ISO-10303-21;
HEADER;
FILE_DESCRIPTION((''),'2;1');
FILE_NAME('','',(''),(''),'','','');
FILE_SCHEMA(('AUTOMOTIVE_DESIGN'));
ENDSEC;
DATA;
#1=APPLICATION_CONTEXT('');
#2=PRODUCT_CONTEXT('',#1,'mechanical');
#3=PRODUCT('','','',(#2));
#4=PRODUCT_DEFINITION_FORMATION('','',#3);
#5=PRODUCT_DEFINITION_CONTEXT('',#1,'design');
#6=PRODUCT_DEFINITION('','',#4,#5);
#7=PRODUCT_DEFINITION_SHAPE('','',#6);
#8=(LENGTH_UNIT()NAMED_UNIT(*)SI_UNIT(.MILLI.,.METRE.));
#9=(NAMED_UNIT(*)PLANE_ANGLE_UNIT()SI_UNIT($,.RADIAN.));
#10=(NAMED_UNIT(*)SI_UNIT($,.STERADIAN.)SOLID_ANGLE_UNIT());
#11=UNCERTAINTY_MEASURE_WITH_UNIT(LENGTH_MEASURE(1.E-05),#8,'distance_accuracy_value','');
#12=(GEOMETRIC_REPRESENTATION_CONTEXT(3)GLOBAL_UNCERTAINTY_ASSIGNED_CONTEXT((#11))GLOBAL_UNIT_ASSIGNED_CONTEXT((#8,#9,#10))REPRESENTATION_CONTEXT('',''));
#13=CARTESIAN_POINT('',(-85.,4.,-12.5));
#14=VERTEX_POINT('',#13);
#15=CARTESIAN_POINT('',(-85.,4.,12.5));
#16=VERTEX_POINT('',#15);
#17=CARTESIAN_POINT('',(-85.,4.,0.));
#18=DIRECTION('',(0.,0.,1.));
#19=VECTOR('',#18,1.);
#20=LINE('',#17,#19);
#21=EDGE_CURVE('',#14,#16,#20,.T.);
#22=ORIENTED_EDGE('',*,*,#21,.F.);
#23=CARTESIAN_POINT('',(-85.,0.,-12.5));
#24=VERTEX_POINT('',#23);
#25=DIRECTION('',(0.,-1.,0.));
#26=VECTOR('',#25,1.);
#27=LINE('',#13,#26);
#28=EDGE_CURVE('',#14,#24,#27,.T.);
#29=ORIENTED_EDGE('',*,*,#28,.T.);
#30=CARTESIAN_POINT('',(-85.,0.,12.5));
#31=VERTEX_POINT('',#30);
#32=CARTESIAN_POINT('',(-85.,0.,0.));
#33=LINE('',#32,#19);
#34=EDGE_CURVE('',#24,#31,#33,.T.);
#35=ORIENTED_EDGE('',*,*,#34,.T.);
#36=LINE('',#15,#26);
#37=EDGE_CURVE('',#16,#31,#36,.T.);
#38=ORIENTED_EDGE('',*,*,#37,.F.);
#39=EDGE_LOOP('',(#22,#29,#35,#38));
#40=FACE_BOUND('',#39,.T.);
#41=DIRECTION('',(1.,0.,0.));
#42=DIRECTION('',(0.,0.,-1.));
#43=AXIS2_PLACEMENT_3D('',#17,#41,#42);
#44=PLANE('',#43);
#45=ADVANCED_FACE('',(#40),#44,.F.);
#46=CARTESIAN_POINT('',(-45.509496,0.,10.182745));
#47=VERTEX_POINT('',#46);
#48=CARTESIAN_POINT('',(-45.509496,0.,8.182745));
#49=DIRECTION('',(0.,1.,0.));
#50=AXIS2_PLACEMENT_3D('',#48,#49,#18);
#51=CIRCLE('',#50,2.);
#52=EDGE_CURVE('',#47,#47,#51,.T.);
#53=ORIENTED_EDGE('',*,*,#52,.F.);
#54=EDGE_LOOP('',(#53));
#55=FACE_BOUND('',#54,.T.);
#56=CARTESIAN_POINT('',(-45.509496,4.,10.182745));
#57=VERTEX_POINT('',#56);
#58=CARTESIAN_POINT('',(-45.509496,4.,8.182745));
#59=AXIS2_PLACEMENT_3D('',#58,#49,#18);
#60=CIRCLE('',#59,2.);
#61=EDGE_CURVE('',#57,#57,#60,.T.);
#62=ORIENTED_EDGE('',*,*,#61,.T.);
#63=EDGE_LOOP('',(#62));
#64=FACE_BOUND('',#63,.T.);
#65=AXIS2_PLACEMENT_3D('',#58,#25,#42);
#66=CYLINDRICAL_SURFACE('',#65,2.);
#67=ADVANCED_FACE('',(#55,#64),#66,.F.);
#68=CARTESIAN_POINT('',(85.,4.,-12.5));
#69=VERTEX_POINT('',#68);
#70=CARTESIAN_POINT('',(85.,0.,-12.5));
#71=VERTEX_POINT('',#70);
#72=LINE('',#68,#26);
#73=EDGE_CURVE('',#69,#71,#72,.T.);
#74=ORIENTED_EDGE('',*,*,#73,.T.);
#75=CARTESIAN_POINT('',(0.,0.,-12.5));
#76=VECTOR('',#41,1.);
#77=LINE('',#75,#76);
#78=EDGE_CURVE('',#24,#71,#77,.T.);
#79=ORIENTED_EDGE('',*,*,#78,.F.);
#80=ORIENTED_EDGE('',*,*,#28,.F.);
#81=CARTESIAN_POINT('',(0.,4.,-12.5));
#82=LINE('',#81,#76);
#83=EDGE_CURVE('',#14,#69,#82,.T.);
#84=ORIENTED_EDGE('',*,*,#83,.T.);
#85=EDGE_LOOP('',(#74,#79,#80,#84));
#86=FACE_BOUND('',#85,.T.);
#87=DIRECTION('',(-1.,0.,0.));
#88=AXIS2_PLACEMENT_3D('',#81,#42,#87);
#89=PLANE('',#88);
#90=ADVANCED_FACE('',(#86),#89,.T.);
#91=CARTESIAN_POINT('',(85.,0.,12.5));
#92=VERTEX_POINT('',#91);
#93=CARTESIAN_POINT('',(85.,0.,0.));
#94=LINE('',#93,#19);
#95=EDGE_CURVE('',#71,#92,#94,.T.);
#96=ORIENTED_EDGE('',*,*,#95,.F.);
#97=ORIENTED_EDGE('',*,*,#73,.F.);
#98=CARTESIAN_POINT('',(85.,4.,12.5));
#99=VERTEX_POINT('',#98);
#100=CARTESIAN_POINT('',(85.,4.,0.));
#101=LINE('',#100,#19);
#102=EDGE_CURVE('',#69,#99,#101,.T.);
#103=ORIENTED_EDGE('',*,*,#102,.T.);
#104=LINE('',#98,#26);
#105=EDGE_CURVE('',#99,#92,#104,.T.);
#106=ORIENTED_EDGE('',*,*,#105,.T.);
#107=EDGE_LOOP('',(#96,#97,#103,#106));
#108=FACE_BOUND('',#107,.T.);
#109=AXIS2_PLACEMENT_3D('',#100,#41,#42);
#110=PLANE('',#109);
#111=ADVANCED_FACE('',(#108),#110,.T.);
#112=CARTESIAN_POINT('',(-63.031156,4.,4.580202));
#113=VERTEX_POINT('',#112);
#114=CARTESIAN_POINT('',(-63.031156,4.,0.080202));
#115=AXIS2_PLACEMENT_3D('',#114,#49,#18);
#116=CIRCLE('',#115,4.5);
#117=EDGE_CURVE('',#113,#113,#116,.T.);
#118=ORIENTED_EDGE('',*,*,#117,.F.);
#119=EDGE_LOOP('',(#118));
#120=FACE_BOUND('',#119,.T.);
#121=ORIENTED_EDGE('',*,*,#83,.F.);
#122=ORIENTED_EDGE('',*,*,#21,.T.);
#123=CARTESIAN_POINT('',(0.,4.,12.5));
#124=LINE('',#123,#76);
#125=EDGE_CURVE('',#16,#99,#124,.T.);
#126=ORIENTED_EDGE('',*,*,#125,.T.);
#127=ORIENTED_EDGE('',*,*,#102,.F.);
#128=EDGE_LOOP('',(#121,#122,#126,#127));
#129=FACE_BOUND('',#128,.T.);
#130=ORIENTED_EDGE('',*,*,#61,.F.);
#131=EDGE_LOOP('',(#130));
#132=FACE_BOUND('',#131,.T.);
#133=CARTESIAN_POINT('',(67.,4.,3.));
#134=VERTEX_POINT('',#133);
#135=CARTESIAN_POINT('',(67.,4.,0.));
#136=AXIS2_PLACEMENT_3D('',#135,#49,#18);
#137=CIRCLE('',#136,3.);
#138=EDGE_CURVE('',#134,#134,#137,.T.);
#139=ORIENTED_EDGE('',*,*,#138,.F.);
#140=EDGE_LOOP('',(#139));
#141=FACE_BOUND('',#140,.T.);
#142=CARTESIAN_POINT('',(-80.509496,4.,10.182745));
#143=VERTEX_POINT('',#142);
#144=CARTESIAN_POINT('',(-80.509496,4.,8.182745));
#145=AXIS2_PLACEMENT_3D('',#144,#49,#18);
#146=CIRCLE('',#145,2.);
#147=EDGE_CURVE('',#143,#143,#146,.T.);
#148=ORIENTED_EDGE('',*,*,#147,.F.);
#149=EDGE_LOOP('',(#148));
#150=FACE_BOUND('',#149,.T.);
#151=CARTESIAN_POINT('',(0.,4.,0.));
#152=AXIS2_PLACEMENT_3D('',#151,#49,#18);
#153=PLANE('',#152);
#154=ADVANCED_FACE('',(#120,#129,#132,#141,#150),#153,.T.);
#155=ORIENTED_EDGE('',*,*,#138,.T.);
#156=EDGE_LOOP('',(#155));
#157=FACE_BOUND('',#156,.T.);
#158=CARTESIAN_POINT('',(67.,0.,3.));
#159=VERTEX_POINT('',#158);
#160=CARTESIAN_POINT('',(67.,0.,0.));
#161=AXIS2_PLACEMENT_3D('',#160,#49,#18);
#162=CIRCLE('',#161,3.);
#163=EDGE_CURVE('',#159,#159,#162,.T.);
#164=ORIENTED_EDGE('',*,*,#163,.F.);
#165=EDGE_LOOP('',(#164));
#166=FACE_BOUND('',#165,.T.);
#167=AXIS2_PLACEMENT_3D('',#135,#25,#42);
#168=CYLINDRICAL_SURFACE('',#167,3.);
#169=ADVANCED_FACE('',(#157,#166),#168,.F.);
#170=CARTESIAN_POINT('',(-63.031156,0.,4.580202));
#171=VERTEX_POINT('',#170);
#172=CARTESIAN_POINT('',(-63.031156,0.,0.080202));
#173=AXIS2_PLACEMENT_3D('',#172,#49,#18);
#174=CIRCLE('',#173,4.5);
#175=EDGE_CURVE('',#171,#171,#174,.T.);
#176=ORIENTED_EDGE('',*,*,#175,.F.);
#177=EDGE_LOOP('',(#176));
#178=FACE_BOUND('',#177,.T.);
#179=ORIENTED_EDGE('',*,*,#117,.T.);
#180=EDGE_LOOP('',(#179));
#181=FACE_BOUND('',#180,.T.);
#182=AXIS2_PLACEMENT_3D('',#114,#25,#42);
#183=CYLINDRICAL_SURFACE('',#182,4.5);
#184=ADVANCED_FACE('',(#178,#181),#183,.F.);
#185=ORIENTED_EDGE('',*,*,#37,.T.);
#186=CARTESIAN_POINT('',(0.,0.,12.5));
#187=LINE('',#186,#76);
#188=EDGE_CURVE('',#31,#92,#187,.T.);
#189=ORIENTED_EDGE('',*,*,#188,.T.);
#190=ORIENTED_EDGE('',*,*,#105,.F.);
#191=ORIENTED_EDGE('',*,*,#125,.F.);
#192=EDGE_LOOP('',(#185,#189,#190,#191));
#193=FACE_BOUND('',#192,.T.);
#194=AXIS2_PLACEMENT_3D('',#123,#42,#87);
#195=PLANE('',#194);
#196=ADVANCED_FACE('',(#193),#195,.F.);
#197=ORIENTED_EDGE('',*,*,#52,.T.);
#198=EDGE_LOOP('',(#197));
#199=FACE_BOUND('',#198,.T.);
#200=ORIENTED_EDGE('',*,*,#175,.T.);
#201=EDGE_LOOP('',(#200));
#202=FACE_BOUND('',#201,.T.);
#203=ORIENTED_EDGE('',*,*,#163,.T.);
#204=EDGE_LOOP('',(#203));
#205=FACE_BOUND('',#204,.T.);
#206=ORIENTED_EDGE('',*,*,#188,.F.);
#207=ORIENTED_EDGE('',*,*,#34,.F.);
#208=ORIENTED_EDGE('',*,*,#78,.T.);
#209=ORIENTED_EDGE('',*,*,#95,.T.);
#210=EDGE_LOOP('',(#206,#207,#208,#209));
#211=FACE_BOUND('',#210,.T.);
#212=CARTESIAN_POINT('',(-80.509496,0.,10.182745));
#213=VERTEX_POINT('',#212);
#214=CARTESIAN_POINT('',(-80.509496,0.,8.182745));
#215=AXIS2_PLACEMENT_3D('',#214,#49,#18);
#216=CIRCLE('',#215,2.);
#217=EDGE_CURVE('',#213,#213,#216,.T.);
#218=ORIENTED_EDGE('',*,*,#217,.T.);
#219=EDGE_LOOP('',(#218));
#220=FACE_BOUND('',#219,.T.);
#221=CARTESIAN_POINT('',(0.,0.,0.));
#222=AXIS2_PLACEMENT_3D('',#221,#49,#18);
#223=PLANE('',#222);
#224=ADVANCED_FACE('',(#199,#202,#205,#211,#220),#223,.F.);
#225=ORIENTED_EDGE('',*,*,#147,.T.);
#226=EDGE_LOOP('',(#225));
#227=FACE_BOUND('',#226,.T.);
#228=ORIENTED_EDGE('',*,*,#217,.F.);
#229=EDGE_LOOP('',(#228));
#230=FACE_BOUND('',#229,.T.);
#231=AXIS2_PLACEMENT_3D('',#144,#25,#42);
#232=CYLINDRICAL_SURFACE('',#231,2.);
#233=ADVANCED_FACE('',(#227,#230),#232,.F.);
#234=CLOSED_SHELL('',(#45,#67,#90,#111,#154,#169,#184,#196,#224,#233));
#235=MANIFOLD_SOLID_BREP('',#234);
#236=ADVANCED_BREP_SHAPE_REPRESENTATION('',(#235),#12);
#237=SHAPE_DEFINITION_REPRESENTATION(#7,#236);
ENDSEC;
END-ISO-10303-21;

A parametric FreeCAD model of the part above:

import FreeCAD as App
import Part
import Sketcher

V = App.Vector
Q = App.Units.Quantity


def add_polygon(sketch, points):
    """Adds a closed chain of lines whose ends are joined by coincident constraints."""
    first, n = sketch.GeometryCount, len(points)
    for a, b in zip(points, points[1:] + points[:1]):
        sketch.addGeometry(Part.LineSegment(App.Vector(*a, 0), App.Vector(*b, 0)), False)
    for i in range(n):
        sketch.addConstraint(Sketcher.Constraint("Coincident", first + i, 2, first + (i + 1) % n, 1))

doc = App.newDocument("Part")
params = doc.addObject("Spreadsheet::Sheet", "Params")
for row, (alias, value) in enumerate([
    ("sketch1_diameter", "4 mm"),
    ("sketch1_diameter2", "9 mm"),
    ("sketch1_diameter3", "6 mm"),
    ("sketch1_width", "170 mm"),
    ("sketch1_height", "25 mm"),
    ("pad1_length", "4 mm"),
], start=1):
    params.set(f"A{row}", alias)
    params.set(f"B{row}", "=" + value)
    params.setAlias(f"B{row}", alias)

body = doc.addObject("PartDesign::Body", "Body")

sketch1 = doc.addObject("Sketcher::SketchObject", "Sketch")
body.addObject(sketch1)
sketch1.AttachmentSupport = (doc.XZ_Plane, [""])
sketch1.MapMode = "FlatFace"
add_polygon(sketch1, [(-85, -12.5), (-85, 12.5), (85, 12.5), (85, -12.5)])
sketch1.addGeometry(Part.Circle(V(-80.5, 8.2, 0), V(0, 0, 1), 2), False)
sketch1.addGeometry(Part.Circle(V(-45.5, 8.2, 0), V(0, 0, 1), 2), False)
sketch1.addGeometry(Part.Circle(V(-63, 0.1, 0), V(0, 0, 1), 4.5), False)
sketch1.addGeometry(Part.Circle(V(67, 0, 0), V(0, 0, 1), 3), False)
sketch1.addConstraint([
    Sketcher.Constraint("Vertical", 0),
    Sketcher.Constraint("Horizontal", 1),
    Sketcher.Constraint("Vertical", 2),
    Sketcher.Constraint("Horizontal", 3),
    Sketcher.Constraint("Equal", 4, 5),
    Sketcher.Constraint("Symmetric", 0, 2, 2, 2, -1, 1),
    Sketcher.Constraint("PointOnObject", 7, 3, -1),
    Sketcher.Constraint("Horizontal", 4, 3, 5, 3),
    Sketcher.Constraint("Diameter", 4, Q("4 mm")),
    Sketcher.Constraint("Diameter", 6, Q("9 mm")),
    Sketcher.Constraint("Diameter", 7, Q("6 mm")),
    Sketcher.Constraint("DistanceX", 1, 1, 1, 2, Q("170 mm")),
    Sketcher.Constraint("DistanceY", 0, 1, 0, 2, Q("25 mm")),
    Sketcher.Constraint("DistanceX", -1, 1, 7, 3, Q("67 mm")),
    Sketcher.Constraint("DistanceX", 4, 3, 5, 3, Q("35 mm")),
    Sketcher.Constraint("DistanceY", -1, 1, 6, 3, Q("0.080202 mm")),
    Sketcher.Constraint("DistanceX", 4, 3, 6, 3, Q("17.478339 mm")),
    Sketcher.Constraint("DistanceX", 4, 3, -1, 1, Q("80.509496 mm")),
    Sketcher.Constraint("DistanceY", -1, 1, 4, 3, Q("8.182745 mm")),
])
sketch1.setExpression("Constraints[12]", "Params.sketch1_diameter")
sketch1.setExpression("Constraints[13]", "Params.sketch1_diameter2")
sketch1.setExpression("Constraints[14]", "Params.sketch1_diameter3")
sketch1.setExpression("Constraints[15]", "Params.sketch1_width")
sketch1.setExpression("Constraints[16]", "Params.sketch1_height")
pad1 = doc.addObject("PartDesign::Pad", "Pad")
body.addObject(pad1)
pad1.Profile = sketch1
pad1.setExpression("Length", "Params.pad1_length")
pad1.Reversed = True

doc.recompute()
